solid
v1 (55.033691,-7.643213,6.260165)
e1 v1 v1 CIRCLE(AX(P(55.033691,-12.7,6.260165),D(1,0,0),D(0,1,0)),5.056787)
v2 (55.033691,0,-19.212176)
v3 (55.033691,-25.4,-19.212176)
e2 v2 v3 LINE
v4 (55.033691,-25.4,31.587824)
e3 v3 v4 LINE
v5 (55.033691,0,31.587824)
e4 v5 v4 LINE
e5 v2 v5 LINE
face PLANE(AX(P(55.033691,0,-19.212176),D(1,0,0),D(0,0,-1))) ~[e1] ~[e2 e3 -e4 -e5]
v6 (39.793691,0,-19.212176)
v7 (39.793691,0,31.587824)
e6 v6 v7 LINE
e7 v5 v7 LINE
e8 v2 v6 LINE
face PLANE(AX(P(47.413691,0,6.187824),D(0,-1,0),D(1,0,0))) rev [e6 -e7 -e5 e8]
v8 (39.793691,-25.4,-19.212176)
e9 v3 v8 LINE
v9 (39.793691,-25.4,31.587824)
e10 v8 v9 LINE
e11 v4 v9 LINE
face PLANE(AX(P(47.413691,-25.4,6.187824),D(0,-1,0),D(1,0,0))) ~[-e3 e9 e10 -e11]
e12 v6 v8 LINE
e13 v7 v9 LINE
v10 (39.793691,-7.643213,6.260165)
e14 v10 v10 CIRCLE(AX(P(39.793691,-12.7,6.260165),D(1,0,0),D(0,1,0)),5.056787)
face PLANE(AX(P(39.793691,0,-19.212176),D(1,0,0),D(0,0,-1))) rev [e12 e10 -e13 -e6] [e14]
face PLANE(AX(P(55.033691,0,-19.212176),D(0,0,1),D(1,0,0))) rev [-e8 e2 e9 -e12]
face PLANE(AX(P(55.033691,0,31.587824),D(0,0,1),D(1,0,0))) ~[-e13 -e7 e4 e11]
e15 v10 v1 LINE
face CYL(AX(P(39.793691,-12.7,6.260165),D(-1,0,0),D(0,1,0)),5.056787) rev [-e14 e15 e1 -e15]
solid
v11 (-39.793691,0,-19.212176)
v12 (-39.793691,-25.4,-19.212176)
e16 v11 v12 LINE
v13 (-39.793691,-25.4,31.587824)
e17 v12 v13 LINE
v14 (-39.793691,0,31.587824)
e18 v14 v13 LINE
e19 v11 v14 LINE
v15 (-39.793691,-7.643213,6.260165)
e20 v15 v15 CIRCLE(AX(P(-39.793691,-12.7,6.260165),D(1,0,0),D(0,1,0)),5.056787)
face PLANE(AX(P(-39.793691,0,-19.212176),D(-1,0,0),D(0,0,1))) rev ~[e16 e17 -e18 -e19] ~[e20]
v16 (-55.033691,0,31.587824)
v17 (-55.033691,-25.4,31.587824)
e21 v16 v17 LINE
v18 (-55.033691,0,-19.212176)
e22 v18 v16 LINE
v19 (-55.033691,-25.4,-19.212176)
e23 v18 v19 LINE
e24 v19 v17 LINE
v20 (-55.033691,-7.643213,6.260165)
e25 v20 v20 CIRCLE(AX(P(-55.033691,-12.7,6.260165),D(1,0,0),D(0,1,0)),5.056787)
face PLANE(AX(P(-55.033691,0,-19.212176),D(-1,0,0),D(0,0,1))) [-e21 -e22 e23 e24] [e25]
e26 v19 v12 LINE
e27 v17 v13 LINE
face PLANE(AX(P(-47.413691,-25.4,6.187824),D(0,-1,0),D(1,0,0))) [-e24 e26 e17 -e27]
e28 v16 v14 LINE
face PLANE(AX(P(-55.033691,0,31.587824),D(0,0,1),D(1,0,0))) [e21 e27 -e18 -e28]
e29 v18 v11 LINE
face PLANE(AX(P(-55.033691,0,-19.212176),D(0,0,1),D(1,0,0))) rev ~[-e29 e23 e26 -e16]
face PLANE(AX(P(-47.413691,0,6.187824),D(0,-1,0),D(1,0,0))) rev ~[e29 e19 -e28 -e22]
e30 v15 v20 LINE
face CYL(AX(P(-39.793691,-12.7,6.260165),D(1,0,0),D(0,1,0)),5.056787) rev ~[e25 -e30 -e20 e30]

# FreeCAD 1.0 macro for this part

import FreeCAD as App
import Part
import Sketcher
Q = App.Units.Quantity


def add_polygon(sketch, points):
    """Adds a closed chain of lines whose ends are joined by coincident constraints."""
    first, n = sketch.GeometryCount, len(points)
    for a, b in zip(points, points[1:] + points[:1]):
        sketch.addGeometry(Part.LineSegment(App.Vector(*a, 0), App.Vector(*b, 0)), False)
    for i in range(n):
        sketch.addConstraint(Sketcher.Constraint("Coincident", first + i, 2, first + (i + 1) % n, 1))

doc = App.newDocument("Part")
params = doc.addObject("Spreadsheet::Sheet", "Params")
for row, (alias, value) in enumerate([
    ("sketch1_height", "2 in"),
    ("sketch1_width", "0.6 in"),
    ("pad1_length", "1 in"),
    ("pocket1_length", "1 in"),
], start=1):
    params.set(f"A{row}", alias)
    params.set(f"B{row}", "=" + value)
    params.setAlias(f"B{row}", alias)

body = doc.addObject("PartDesign::Body", "Body")

# Sketch on XZ plane
sketch1 = body.newObject("Sketcher::SketchObject", "Sketch")
sketch1.AttachmentSupport = (doc.getObject("XZ_Plane"), [""])
sketch1.MapMode = "FlatFace"
add_polygon(sketch1, [(-55.033691, 31.587824), (-55.033691, -19.212176), (-39.793691, -19.212176), (-39.793691, 31.587824)])  # lines 0-3
sketch1.addConstraint([
    Sketcher.Constraint("Vertical", 0),
    Sketcher.Constraint("Horizontal", 1),
    Sketcher.Constraint("Vertical", 2),
    Sketcher.Constraint("Horizontal", 3),
    Sketcher.Constraint("DistanceY", 0, 2, 0, 1, Q("2 in")),
    Sketcher.Constraint("DistanceX", 1, 1, 1, 2, Q("0.6 in")),
    Sketcher.Constraint("DistanceX", 0, 2, -1, 1, 55.033691),
    Sketcher.Constraint("DistanceY", 0, 2, -1, 1, 19.212176),
])
sketch1.setExpression("Constraints[8]", "Params.sketch1_height")
sketch1.setExpression("Constraints[9]", "Params.sketch1_width")
pad1 = body.newObject("PartDesign::Pad", "Pad")
pad1.Profile = sketch1
pad1.setExpression("Length", "Params.pad1_length")

# Sketch on YZ plane
sketch2 = body.newObject("Sketcher::SketchObject", "Sketch001")
sketch2.AttachmentSupport = (doc.getObject("YZ_Plane"), [""])
sketch2.MapMode = "FlatFace"
sketch2.AttachmentOffset = App.Placement(App.Vector(0, 0, -39.793691), App.Rotation())
sketch2.addGeometry(Part.Circle(App.Vector(-12.7, 6.260165, 0), App.Vector(0, 0, 1), 5.056787), False)
sketch2.addConstraint([
    Sketcher.Constraint("DistanceX", 0, 3, -1, 1, Q("0.5 in")),
    Sketcher.Constraint("Diameter", 0, 10.113574),
    Sketcher.Constraint("DistanceY", -1, 1, 0, 3, 6.260165),
])
pocket1 = body.newObject("PartDesign::Pocket", "Pocket")
pocket1.Profile = sketch2
pocket1.setExpression("Length", "Params.pocket1_length")
body2 = doc.addObject("PartDesign::Body", "Body001")
doc.recompute()

mirroring = doc.addObject("Part::Mirroring", "Mirroring")
mirroring.Source = body
mirroring.Base = App.Vector(0, 0, 0)
mirroring.Normal = App.Vector(1, 0, 0)
body2.BaseFeature = mirroring
doc.recompute()
mirroring.Visibility = False

doc.recompute()
